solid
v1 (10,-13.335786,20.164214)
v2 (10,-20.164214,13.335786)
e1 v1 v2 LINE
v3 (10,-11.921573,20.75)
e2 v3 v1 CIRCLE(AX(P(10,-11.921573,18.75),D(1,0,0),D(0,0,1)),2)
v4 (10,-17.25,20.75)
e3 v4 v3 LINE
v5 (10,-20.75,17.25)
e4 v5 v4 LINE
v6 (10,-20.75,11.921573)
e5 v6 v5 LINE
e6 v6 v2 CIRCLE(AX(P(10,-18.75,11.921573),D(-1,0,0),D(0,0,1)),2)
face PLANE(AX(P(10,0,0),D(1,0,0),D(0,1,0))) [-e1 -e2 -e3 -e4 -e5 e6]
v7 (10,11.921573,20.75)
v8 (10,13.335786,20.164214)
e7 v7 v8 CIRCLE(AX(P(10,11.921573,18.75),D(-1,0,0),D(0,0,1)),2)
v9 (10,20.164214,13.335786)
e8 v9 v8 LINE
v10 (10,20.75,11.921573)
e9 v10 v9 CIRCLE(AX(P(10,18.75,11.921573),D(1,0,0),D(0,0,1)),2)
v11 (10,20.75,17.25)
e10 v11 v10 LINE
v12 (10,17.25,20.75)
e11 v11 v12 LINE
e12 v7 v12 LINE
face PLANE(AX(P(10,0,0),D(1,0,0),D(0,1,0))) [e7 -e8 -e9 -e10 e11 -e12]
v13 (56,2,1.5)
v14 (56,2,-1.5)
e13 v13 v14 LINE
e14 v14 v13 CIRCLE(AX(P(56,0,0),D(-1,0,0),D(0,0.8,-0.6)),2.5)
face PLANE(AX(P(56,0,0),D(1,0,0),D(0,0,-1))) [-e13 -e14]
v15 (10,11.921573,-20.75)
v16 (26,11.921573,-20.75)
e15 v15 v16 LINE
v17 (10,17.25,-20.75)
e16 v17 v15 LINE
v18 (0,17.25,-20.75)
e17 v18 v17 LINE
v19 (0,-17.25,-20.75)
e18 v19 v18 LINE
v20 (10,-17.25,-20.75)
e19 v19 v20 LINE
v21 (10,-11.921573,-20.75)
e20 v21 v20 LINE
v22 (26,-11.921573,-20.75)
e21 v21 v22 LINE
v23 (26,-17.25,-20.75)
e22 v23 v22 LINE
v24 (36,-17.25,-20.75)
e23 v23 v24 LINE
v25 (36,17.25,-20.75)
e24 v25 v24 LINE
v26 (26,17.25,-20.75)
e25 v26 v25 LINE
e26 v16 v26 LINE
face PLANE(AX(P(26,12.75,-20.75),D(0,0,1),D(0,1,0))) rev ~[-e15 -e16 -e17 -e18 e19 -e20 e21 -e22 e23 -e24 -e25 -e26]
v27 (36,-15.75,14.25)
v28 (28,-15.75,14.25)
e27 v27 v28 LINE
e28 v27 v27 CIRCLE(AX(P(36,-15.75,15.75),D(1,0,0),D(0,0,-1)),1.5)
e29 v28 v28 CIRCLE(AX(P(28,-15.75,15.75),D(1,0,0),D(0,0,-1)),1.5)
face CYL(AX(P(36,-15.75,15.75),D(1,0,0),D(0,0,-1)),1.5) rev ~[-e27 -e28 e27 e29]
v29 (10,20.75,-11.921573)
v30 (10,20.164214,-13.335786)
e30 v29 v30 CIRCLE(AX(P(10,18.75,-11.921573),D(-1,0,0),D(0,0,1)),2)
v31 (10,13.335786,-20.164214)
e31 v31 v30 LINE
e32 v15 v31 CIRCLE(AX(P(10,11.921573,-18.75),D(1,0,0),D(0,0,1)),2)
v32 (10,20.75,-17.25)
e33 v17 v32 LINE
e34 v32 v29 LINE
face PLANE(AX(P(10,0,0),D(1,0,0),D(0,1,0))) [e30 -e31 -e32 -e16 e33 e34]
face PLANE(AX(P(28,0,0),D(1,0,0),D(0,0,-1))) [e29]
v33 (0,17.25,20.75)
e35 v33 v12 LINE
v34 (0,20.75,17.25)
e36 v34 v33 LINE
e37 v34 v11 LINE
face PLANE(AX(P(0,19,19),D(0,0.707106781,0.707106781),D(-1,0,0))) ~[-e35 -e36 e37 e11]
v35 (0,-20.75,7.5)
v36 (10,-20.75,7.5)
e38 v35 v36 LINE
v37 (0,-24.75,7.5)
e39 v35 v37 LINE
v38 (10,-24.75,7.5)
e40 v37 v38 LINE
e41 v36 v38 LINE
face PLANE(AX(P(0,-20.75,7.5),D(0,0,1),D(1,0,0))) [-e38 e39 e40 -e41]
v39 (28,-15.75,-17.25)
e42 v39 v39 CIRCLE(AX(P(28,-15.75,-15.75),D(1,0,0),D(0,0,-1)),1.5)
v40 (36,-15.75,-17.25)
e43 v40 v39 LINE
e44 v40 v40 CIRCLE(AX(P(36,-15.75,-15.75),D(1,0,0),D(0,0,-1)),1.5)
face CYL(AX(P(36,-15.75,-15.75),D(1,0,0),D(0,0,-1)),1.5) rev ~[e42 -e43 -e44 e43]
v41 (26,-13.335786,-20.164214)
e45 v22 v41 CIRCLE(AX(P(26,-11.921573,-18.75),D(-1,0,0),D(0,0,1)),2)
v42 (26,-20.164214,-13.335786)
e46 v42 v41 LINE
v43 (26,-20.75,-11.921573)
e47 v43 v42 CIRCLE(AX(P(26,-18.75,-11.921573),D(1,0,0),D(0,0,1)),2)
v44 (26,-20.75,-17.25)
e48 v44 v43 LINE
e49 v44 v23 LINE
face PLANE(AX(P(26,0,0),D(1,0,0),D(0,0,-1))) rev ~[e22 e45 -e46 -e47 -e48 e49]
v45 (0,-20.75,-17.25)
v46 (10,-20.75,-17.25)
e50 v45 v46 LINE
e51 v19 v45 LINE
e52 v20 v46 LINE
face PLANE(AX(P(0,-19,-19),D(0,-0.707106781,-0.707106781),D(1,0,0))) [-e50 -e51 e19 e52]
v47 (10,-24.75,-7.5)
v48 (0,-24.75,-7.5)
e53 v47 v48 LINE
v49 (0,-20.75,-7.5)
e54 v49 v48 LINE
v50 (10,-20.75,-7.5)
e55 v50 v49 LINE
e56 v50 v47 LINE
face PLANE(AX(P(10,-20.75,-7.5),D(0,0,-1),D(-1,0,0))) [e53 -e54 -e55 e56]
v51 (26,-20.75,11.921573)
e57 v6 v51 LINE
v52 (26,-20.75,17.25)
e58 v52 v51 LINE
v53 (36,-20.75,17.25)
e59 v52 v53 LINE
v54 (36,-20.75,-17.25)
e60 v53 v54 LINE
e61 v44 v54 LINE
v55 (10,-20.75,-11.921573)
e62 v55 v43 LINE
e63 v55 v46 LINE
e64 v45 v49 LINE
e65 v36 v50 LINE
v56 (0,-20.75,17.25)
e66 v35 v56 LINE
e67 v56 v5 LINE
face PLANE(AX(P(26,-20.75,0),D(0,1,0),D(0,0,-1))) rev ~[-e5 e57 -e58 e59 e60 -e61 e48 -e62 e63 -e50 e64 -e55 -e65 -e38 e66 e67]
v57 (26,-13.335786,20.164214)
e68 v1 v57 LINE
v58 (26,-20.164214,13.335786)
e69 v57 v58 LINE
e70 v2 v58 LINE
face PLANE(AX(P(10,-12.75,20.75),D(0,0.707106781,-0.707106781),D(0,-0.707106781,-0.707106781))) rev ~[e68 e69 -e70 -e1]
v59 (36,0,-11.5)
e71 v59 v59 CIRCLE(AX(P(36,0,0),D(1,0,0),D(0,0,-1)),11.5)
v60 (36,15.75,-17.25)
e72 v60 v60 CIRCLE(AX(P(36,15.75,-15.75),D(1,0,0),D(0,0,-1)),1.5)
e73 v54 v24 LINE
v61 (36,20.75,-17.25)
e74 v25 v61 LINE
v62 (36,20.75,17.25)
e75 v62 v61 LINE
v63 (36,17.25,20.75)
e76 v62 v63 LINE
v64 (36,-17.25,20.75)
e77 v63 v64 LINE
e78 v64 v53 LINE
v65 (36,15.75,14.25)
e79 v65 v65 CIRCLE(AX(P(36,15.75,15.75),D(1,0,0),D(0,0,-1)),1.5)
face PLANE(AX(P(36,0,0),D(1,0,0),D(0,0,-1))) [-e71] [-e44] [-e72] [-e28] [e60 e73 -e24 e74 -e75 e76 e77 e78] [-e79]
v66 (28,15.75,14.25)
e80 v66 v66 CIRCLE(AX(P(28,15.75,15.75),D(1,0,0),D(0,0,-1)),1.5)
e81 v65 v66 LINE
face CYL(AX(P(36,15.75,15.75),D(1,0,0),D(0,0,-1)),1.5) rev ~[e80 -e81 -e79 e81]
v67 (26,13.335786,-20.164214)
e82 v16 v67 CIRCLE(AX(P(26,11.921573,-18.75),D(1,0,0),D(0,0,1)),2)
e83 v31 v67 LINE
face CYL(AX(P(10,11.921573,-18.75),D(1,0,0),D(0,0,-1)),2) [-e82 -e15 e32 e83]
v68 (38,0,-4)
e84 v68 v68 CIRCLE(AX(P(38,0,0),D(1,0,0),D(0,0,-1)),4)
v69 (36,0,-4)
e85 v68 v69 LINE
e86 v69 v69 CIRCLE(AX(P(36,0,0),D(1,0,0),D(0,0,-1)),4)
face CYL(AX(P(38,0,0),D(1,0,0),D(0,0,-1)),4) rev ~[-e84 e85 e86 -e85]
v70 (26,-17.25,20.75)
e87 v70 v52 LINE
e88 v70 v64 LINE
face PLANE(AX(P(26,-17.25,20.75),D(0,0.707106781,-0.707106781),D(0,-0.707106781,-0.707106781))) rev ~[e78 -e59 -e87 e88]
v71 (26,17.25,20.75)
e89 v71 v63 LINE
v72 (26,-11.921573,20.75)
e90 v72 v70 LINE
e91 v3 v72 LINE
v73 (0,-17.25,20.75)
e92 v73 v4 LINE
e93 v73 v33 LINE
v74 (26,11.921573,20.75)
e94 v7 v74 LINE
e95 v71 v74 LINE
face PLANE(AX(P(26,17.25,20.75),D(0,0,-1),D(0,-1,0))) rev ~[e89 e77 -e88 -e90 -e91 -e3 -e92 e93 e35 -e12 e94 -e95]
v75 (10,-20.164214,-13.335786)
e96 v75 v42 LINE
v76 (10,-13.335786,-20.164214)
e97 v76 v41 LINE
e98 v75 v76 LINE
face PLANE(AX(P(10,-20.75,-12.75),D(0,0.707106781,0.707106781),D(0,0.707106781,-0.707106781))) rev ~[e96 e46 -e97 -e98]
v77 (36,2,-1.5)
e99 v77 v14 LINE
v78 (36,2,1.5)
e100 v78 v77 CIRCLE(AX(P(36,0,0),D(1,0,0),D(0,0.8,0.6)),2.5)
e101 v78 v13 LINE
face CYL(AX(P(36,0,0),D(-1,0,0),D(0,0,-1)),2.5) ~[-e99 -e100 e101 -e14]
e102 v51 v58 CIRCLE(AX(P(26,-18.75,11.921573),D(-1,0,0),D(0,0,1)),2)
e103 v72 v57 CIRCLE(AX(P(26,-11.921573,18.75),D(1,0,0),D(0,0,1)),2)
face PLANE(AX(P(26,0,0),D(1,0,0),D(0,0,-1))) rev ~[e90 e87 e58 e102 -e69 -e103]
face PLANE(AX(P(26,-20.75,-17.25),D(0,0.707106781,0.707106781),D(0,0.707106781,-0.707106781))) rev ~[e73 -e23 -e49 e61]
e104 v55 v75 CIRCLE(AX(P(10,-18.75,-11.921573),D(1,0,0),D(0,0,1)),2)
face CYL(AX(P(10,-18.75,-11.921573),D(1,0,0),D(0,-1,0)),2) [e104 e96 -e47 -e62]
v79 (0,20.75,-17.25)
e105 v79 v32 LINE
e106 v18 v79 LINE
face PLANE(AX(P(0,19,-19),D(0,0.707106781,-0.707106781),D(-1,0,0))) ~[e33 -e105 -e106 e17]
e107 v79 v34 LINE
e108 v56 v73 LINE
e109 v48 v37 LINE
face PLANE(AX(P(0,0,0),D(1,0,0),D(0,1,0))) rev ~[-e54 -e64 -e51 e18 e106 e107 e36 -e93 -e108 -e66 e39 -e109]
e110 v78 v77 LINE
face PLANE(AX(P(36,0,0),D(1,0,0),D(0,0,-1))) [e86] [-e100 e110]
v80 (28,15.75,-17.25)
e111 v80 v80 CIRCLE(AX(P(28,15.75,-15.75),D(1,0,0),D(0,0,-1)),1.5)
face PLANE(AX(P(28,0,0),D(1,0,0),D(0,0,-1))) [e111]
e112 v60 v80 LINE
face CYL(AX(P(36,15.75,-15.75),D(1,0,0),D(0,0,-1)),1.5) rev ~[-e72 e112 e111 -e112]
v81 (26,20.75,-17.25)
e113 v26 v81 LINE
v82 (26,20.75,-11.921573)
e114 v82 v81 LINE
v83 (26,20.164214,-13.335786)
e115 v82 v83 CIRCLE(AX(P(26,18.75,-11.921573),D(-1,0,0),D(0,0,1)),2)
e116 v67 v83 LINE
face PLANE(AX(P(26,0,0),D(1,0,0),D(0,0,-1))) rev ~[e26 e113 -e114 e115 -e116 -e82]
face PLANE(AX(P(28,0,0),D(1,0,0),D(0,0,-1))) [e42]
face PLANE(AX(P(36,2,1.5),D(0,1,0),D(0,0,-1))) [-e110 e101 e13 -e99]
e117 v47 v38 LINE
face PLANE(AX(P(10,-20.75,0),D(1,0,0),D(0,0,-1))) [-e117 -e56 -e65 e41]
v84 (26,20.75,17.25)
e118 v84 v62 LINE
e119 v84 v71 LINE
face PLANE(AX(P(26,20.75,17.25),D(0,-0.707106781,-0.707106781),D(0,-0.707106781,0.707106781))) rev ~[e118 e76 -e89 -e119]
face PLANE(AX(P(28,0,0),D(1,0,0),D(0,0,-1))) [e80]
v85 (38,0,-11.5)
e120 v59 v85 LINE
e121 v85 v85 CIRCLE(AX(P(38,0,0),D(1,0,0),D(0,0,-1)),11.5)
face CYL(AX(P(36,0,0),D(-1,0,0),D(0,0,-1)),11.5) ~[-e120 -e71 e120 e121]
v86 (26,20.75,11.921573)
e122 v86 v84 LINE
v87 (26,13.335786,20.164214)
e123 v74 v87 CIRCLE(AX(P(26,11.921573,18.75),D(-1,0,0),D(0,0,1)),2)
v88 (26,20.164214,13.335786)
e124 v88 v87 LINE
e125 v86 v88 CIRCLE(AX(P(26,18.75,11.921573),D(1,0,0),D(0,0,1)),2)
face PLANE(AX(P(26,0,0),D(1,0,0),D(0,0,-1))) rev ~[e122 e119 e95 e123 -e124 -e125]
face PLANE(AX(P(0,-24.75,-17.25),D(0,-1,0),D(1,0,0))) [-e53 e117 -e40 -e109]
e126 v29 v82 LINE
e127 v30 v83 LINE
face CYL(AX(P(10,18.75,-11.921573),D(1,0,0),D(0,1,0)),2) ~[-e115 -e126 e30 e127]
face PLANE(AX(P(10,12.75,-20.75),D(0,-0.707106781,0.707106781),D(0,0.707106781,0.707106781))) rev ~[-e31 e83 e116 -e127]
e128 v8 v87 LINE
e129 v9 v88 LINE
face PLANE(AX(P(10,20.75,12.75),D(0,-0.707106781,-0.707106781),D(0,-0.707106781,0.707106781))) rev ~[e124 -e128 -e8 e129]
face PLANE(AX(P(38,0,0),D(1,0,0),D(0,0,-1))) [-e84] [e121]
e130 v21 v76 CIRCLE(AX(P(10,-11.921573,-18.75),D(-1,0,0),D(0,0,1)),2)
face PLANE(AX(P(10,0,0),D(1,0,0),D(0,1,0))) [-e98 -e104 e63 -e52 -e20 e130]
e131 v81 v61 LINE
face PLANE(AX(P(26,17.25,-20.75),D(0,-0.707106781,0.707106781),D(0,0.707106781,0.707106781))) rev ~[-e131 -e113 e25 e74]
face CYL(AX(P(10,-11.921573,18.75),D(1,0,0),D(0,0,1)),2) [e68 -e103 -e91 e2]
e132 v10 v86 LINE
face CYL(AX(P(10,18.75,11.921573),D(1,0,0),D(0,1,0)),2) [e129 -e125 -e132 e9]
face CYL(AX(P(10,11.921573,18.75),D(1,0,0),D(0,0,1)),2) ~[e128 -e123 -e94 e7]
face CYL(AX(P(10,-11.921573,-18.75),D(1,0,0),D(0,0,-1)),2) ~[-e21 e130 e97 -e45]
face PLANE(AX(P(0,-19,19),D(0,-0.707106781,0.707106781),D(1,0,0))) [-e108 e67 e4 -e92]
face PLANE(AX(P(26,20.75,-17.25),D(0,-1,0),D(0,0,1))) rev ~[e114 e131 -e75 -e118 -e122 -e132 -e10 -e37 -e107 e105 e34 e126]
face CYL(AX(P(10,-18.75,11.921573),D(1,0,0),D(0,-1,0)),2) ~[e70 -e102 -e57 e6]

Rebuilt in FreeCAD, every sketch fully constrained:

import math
import FreeCAD as App
import Part
import Sketcher

V = App.Vector
Q = App.Units.Quantity


def edges_at(feature, points):
    """Names of the edges that pass closest to the given points."""
    edges = feature.Shape.Edges
    near = lambda p: min(range(len(edges)), key=lambda i: edges[i].distToShape(Part.Vertex(*p))[0])
    return sorted({f"Edge{near(p) + 1}" for p in points})


def add_polygon(sketch, points):
    """Adds a closed chain of lines whose ends are joined by coincident constraints."""
    first, n = sketch.GeometryCount, len(points)
    for a, b in zip(points, points[1:] + points[:1]):
        sketch.addGeometry(Part.LineSegment(App.Vector(*a, 0), App.Vector(*b, 0)), False)
    for i in range(n):
        sketch.addConstraint(Sketcher.Constraint("Coincident", first + i, 2, first + (i + 1) % n, 1))

doc = App.newDocument("Part")
params = doc.addObject("Spreadsheet::Sheet", "Params")
for row, (alias, value) in enumerate([
    ("sketch1_width", "41.5 mm"),
    ("pad1_length", "10 mm"),
    ("chamfer_size", "3.5 mm"),
    ("pad2_length", "16 mm"),
    ("sketch3_width", "34.5 mm"),
    ("pad3_length", "10 mm"),
    ("fillet_radius", "2 mm"),
    ("sketch4_diameter", "23 mm"),
    ("pad4_length", "2 mm"),
    ("sketch5_diameter", "8 mm"),
    ("pocket1_length", "2 mm"),
    ("sketch6_radius", "2.5 mm"),
    ("pad5_length", "20 mm"),
    ("sketch7_width", "10 mm"),
    ("sketch7_height", "15 mm"),
    ("pad6_length", "4 mm"),
    ("sketch8_diameter", "3 mm"),
    ("pocket2_length", "8 mm"),
], start=1):
    params.set(f"A{row}", alias)
    params.set(f"B{row}", "=" + value)
    params.setAlias(f"B{row}", alias)

body = doc.addObject("PartDesign::Body", "Body")

# Sketch on YZ plane
sketch1 = body.newObject("Sketcher::SketchObject", "Sketch")
sketch1.AttachmentSupport = (doc.getObject("YZ_Plane"), [""])
sketch1.MapMode = "FlatFace"
add_polygon(sketch1, [(21, -21), (21, 21), (-21, 21), (-21, -21)])  # lines 0-3
sketch1.addConstraint(Sketcher.Constraint("Vertical", 0))
sketch1.addConstraint(Sketcher.Constraint("Horizontal", 1))
sketch1.addConstraint(Sketcher.Constraint("Vertical", 2))
sketch1.addConstraint(Sketcher.Constraint("Horizontal", 3))
sketch1.addConstraint(Sketcher.Constraint("Symmetric", 0, 2, 2, 2, -1, 1))
sketch1.addConstraint(Sketcher.Constraint("Equal", 3, 0))
sketch1.addConstraint(Sketcher.Constraint("DistanceX", 1, 2, 1, 1, Q("41.5 mm")))
sketch1.setExpression("Constraints[10]", "Params.sketch1_width")
pad1 = body.newObject("PartDesign::Pad", "Pad")
pad1.Profile = sketch1
pad1.setExpression("Length", "Params.pad1_length")
doc.recompute()

chamfer = body.newObject("PartDesign::Chamfer", "Chamfer")
chamfer.Base = (pad1, edges_at(pad1, [
    (5, 20.75, 20.75),
    (5, 20.75, -20.75),
    (5, -20.75, -20.75),
    (5, -20.75, 20.75),
]))
chamfer.setExpression("Size", "Params.chamfer_size")

# Sketch on YZ plane
sketch2 = body.newObject("Sketcher::SketchObject", "Sketch001")
sketch2.AttachmentSupport = (doc.getObject("YZ_Plane"), [""])
sketch2.MapMode = "FlatFace"
sketch2.AttachmentOffset = App.Placement(V(0, 0, 10), App.Rotation())
add_polygon(sketch2, [(13, -21), (21, -13), (21, 13), (13, 21), (-13, 21), (-21, 13), (-21, -13), (-13, -21)])  # lines 0-7
sketch2.addConstraint(Sketcher.Constraint("Vertical", 1))
sketch2.addConstraint(Sketcher.Constraint("Horizontal", 3))
sketch2.addConstraint(Sketcher.Constraint("Vertical", 5))
sketch2.addConstraint(Sketcher.Constraint("Horizontal", 7))
sketch2.addConstraint(Sketcher.Constraint("Symmetric", 0, 2, 4, 2, -1, 1))
sketch2.addConstraint(Sketcher.Constraint("Symmetric", 2, 2, 6, 2, -1, 1))
sketch2.addConstraint(Sketcher.Constraint("Perpendicular", 0, 2))
sketch2.addConstraint(Sketcher.Constraint("Perpendicular", 2, 4))
sketch2.addConstraint(Sketcher.Constraint("Perpendicular", 4, 6))
sketch2.addConstraint(Sketcher.Constraint("Horizontal", 1, 2, 4, 2))
sketch2.addConstraint(Sketcher.Constraint("Vertical", 3, 2, 6, 2))
sketch2.addConstraint(Sketcher.Constraint("Equal", 7, 1))
sketch2.addConstraint(Sketcher.Constraint("DistanceX", 2, 2, 1, 2, Q("8 mm")))
sketch2.addConstraint(Sketcher.Constraint("DistanceX", 4, 2, 1, 2, Q("41.5 mm")))
pad2 = body.newObject("PartDesign::Pad", "Pad001")
pad2.Profile = sketch2
pad2.setExpression("Length", "Params.pad2_length")

# Sketch on YZ plane
sketch3 = body.newObject("Sketcher::SketchObject", "Sketch002")
sketch3.AttachmentSupport = (doc.getObject("YZ_Plane"), [""])
sketch3.MapMode = "FlatFace"
sketch3.AttachmentOffset = App.Placement(V(0, 0, 26), App.Rotation())
add_polygon(sketch3, [(17.2, -20.8), (20.8, -17.2), (20.8, 17.2), (17.2, 20.8), (-17.2, 20.8), (-20.8, 17.2), (-20.8, -17.2), (-17.2, -20.8)])  # lines 0-7
sketch3.addConstraint(Sketcher.Constraint("Vertical", 1))
sketch3.addConstraint(Sketcher.Constraint("Horizontal", 3))
sketch3.addConstraint(Sketcher.Constraint("Vertical", 5))
sketch3.addConstraint(Sketcher.Constraint("Horizontal", 7))
sketch3.addConstraint(Sketcher.Constraint("Symmetric", 0, 2, 4, 2, -1, 1))
sketch3.addConstraint(Sketcher.Constraint("Symmetric", 2, 2, 6, 2, -1, 1))
sketch3.addConstraint(Sketcher.Constraint("Perpendicular", 0, 2))
sketch3.addConstraint(Sketcher.Constraint("Perpendicular", 2, 4))
sketch3.addConstraint(Sketcher.Constraint("Perpendicular", 4, 6))
sketch3.addConstraint(Sketcher.Constraint("Horizontal", 1, 2, 4, 2))
sketch3.addConstraint(Sketcher.Constraint("Vertical", 3, 2, 6, 2))
sketch3.addConstraint(Sketcher.Constraint("Equal", 7, 1))
sketch3.addConstraint(Sketcher.Constraint("DistanceX", 4, 2, 1, 2, Q("41.5 mm")))
sketch3.addConstraint(Sketcher.Constraint("DistanceX", 3, 2, 3, 1, Q("34.5 mm")))
sketch3.setExpression("Constraints[21]", "Params.sketch3_width")
pad3 = body.newObject("PartDesign::Pad", "Pad002")
pad3.Profile = sketch3
pad3.setExpression("Length", "Params.pad3_length")
doc.recompute()

fillet = body.newObject("PartDesign::Fillet", "Fillet")
fillet.Base = (pad3, edges_at(pad3, [
    (18, 12.75, -20.75),
    (18, 20.75, -12.75),
    (18, -12.75, -20.75),
    (18, -20.75, -12.75),
    (18, -20.75, 12.75),
    (18, -12.75, 20.75),
    (18, 12.75, 20.75),
    (18, 20.75, 12.75),
]))
fillet.setExpression("Radius", "Params.fillet_radius")

# Sketch on YZ plane
sketch4 = body.newObject("Sketcher::SketchObject", "Sketch003")
sketch4.AttachmentSupport = (doc.getObject("YZ_Plane"), [""])
sketch4.MapMode = "FlatFace"
sketch4.AttachmentOffset = App.Placement(V(0, 0, 36), App.Rotation())
sketch4.addGeometry(Part.Circle(V(0, 0, 0), V(0, 0, 1), 12), False)
sketch4.addConstraint(Sketcher.Constraint("Coincident", 0, 3, -1, 1))
sketch4.addConstraint(Sketcher.Constraint("Diameter", 0, Q("23 mm")))
sketch4.setExpression("Constraints[1]", "Params.sketch4_diameter")
pad4 = body.newObject("PartDesign::Pad", "Pad003")
pad4.Profile = sketch4
pad4.setExpression("Length", "Params.pad4_length")

# Sketch on YZ plane
sketch5 = body.newObject("Sketcher::SketchObject", "Sketch004")
sketch5.AttachmentSupport = (doc.getObject("YZ_Plane"), [""])
sketch5.MapMode = "FlatFace"
sketch5.AttachmentOffset = App.Placement(V(0, 0, 38), App.Rotation())
sketch5.addGeometry(Part.Circle(V(0, 0, 0), V(0, 0, 1), 4), False)
sketch5.addConstraint(Sketcher.Constraint("Coincident", 0, 3, -1, 1))
sketch5.addConstraint(Sketcher.Constraint("Diameter", 0, Q("8 mm")))
sketch5.setExpression("Constraints[1]", "Params.sketch5_diameter")
pocket1 = body.newObject("PartDesign::Pocket", "Pocket")
pocket1.Profile = sketch5
pocket1.setExpression("Length", "Params.pocket1_length")

# Sketch on YZ plane
sketch6 = body.newObject("Sketcher::SketchObject", "Sketch005")
sketch6.AttachmentSupport = (doc.getObject("YZ_Plane"), [""])
sketch6.MapMode = "FlatFace"
sketch6.AttachmentOffset = App.Placement(V(0, 0, 36), App.Rotation())
sketch6.addGeometry(Part.LineSegment(V(2, -1.5, 0), V(2, 1.5, 0)), False)
sketch6.addGeometry(Part.ArcOfCircle(Part.Circle(V(0, 0, 0), V(0, 0, 1), 2.5), math.radians(37), math.radians(323)), False)
sketch6.addConstraint(Sketcher.Constraint("Coincident", 0, 1, 1, 2))
sketch6.addConstraint(Sketcher.Constraint("Coincident", 1, 1, 0, 2))
sketch6.addConstraint(Sketcher.Constraint("Vertical", 0))
sketch6.addConstraint(Sketcher.Constraint("Coincident", 1, 3, -1, 1))
sketch6.addConstraint(Sketcher.Constraint("Radius", 1, Q("2.5 mm")))
sketch6.addConstraint(Sketcher.Constraint("DistanceX", -1, 1, 0, 1, Q("2 mm")))
sketch6.setExpression("Constraints[4]", "Params.sketch6_radius")
pad5 = body.newObject("PartDesign::Pad", "Pad004")
pad5.Profile = sketch6
pad5.setExpression("Length", "Params.pad5_length")

# Sketch on XZ plane
sketch7 = body.newObject("Sketcher::SketchObject", "Sketch006")
sketch7.AttachmentSupport = (doc.getObject("XZ_Plane"), [""])
sketch7.MapMode = "FlatFace"
sketch7.AttachmentOffset = App.Placement(V(0, 0, 20.75), App.Rotation())
add_polygon(sketch7, [(0, -8), (10, -8), (10, 8), (0, 8)])  # lines 0-3
sketch7.addConstraint(Sketcher.Constraint("Horizontal", 0))
sketch7.addConstraint(Sketcher.Constraint("Vertical", 1))
sketch7.addConstraint(Sketcher.Constraint("Horizontal", 2))
sketch7.addConstraint(Sketcher.Constraint("Vertical", 3))
sketch7.addConstraint(Sketcher.Constraint("Symmetric", 2, 2, 3, 2, -1, 1))
sketch7.addConstraint(Sketcher.Constraint("DistanceX", 0, 1, 0, 2, Q("10 mm")))
sketch7.addConstraint(Sketcher.Constraint("DistanceY", 1, 1, 1, 2, Q("15 mm")))
sketch7.setExpression("Constraints[9]", "Params.sketch7_width")
sketch7.setExpression("Constraints[10]", "Params.sketch7_height")
pad6 = body.newObject("PartDesign::Pad", "Pad005")
pad6.Profile = sketch7
pad6.setExpression("Length", "Params.pad6_length")

# Sketch on YZ plane
sketch8 = body.newObject("Sketcher::SketchObject", "Sketch007")
sketch8.AttachmentSupport = (doc.getObject("YZ_Plane"), [""])
sketch8.MapMode = "FlatFace"
sketch8.AttachmentOffset = App.Placement(V(0, 0, 36), App.Rotation())
sketch8.addGeometry(Part.Circle(V(-15.8, -15.8, 0), V(0, 0, 1), 1.5), False)
sketch8.addGeometry(Part.Circle(V(15.8, -15.8, 0), V(0, 0, 1), 1.5), False)
sketch8.addGeometry(Part.Circle(V(-15.8, 15.8, 0), V(0, 0, 1), 1.5), False)
sketch8.addGeometry(Part.Circle(V(15.8, 15.8, 0), V(0, 0, 1), 1.5), False)
sketch8.addConstraint(Sketcher.Constraint("Equal", 0, 1))
sketch8.addConstraint(Sketcher.Constraint("Equal", 1, 2))
sketch8.addConstraint(Sketcher.Constraint("Equal", 2, 3))
sketch8.addConstraint(Sketcher.Constraint("Symmetric", 1, 3, 2, 3, -1, 1))
sketch8.addConstraint(Sketcher.Constraint("Symmetric", 0, 3, 3, 3, -1, 1))
sketch8.addConstraint(Sketcher.Constraint("Symmetric", 0, 3, 1, 3, -2))
sketch8.addConstraint(Sketcher.Constraint("Diameter", 0, Q("3 mm")))
sketch8.addConstraint(Sketcher.Constraint("DistanceX", 0, 3, -1, 1, Q("15.75 mm")))
sketch8.addConstraint(Sketcher.Constraint("DistanceY", 0, 3, -1, 1, Q("15.75 mm")))
sketch8.setExpression("Constraints[6]", "Params.sketch8_diameter")
pocket2 = body.newObject("PartDesign::Pocket", "Pocket001")
pocket2.Profile = sketch8
pocket2.setExpression("Length", "Params.pocket2_length")

doc.recompute()
